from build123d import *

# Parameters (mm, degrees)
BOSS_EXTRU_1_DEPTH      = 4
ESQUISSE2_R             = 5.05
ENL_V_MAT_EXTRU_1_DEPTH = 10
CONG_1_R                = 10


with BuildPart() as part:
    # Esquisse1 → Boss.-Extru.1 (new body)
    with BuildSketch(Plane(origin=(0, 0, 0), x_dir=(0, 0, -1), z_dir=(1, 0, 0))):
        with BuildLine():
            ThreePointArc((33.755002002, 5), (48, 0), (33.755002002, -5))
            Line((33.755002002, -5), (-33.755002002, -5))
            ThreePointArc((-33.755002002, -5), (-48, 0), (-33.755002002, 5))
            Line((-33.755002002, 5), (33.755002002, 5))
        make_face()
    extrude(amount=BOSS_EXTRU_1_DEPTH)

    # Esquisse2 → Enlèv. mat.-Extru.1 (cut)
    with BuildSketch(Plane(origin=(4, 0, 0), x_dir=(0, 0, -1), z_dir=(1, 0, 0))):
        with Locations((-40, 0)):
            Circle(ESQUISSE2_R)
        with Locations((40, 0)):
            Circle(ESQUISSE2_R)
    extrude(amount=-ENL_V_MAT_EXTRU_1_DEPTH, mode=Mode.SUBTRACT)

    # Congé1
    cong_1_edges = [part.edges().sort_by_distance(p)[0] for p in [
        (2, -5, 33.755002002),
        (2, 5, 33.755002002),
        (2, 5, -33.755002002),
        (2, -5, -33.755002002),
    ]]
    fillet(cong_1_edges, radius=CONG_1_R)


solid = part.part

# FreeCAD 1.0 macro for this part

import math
import FreeCAD as App
import Part
import Sketcher
from FreeCAD import Vector


def edges_at(feature, points):
    """Names of the edges that pass closest to the given points."""
    edges = feature.Shape.Edges
    near = lambda p: min(range(len(edges)), key=lambda i: edges[i].distToShape(Part.Vertex(*p))[0])
    return sorted({f"Edge{near(p) + 1}" for p in points})

doc = App.newDocument("Part")
body = doc.addObject("PartDesign::Body", "Body")

# Sketch on YZ plane
sketch1 = body.newObject("Sketcher::SketchObject", "Sketch")
sketch1.AttachmentSupport = (doc.getObject("YZ_Plane"), [""])
sketch1.MapMode = "FlatFace"
sketch1.addGeometry([
    Part.ArcOfCircle(Part.Circle(Vector(0, -40, 0), Vector(0, 0, 1), 8), math.radians(129), math.radians(411)),
    Part.LineSegment(Vector(5, -34, 0), Vector(5, 34, 0)),
    Part.ArcOfCircle(Part.Circle(Vector(0, 40, 0), Vector(0, 0, 1), 8), math.radians(-51), math.radians(231)),
    Part.LineSegment(Vector(-5, 34, 0), Vector(-5, -34, 0)),
], False)
sketch1.addConstraint([
    Sketcher.Constraint("Coincident", 0, 2, 1, 1),
    Sketcher.Constraint("Coincident", 1, 2, 2, 1),
    Sketcher.Constraint("Coincident", 2, 2, 3, 1),
    Sketcher.Constraint("Coincident", 3, 2, 0, 1),
    Sketcher.Constraint("Vertical", 1),
    Sketcher.Constraint("Vertical", 3),
    Sketcher.Constraint("Equal", 0, 2),
    Sketcher.Constraint("Symmetric", 0, 3, 2, 3, -1, 1),
    Sketcher.Constraint("Symmetric", 1, 2, 2, 2, -2),
    Sketcher.Constraint("Radius", 0, 8.0),
    Sketcher.Constraint("DistanceY", 0, 3, -1, 1, 40.0),
    Sketcher.Constraint("DistanceX", -1, 1, 0, 2, 5.0),
])
pad1 = body.newObject("PartDesign::Pad", "Pad")
pad1.Profile = sketch1
pad1.Length = 4

# Sketch on YZ plane
sketch2 = body.newObject("Sketcher::SketchObject", "Sketch001")
sketch2.AttachmentSupport = (doc.getObject("YZ_Plane"), [""])
sketch2.MapMode = "FlatFace"
sketch2.AttachmentOffset = App.Placement(Vector(0, 0, 4), App.Rotation())
sketch2.addGeometry([
    Part.Circle(Vector(0, 40, 0), Vector(0, 0, 1), 5),
    Part.Circle(Vector(0, -40, 0), Vector(0, 0, 1), 5),
], False)
sketch2.addConstraint([
    Sketcher.Constraint("Equal", 0, 1),
    Sketcher.Constraint("Symmetric", 0, 3, 1, 3, -1, 1),
    Sketcher.Constraint("PointOnObject", 0, 3, -2),
    Sketcher.Constraint("Diameter", 0, 10.1),
    Sketcher.Constraint("DistanceY", -1, 1, 0, 3, 40.0),
])
pocket1 = body.newObject("PartDesign::Pocket", "Pocket")
pocket1.Profile = sketch2
pocket1.Length = 10
doc.recompute()

fillet = body.newObject("PartDesign::Fillet", "Fillet")
fillet.Base = (pocket1, edges_at(pocket1, [
    (2, -5, 33.755),
    (2, 5, 33.755),
    (2, 5, -33.755),
    (2, -5, -33.755),
]))
fillet.Radius = 10

doc.recompute()
